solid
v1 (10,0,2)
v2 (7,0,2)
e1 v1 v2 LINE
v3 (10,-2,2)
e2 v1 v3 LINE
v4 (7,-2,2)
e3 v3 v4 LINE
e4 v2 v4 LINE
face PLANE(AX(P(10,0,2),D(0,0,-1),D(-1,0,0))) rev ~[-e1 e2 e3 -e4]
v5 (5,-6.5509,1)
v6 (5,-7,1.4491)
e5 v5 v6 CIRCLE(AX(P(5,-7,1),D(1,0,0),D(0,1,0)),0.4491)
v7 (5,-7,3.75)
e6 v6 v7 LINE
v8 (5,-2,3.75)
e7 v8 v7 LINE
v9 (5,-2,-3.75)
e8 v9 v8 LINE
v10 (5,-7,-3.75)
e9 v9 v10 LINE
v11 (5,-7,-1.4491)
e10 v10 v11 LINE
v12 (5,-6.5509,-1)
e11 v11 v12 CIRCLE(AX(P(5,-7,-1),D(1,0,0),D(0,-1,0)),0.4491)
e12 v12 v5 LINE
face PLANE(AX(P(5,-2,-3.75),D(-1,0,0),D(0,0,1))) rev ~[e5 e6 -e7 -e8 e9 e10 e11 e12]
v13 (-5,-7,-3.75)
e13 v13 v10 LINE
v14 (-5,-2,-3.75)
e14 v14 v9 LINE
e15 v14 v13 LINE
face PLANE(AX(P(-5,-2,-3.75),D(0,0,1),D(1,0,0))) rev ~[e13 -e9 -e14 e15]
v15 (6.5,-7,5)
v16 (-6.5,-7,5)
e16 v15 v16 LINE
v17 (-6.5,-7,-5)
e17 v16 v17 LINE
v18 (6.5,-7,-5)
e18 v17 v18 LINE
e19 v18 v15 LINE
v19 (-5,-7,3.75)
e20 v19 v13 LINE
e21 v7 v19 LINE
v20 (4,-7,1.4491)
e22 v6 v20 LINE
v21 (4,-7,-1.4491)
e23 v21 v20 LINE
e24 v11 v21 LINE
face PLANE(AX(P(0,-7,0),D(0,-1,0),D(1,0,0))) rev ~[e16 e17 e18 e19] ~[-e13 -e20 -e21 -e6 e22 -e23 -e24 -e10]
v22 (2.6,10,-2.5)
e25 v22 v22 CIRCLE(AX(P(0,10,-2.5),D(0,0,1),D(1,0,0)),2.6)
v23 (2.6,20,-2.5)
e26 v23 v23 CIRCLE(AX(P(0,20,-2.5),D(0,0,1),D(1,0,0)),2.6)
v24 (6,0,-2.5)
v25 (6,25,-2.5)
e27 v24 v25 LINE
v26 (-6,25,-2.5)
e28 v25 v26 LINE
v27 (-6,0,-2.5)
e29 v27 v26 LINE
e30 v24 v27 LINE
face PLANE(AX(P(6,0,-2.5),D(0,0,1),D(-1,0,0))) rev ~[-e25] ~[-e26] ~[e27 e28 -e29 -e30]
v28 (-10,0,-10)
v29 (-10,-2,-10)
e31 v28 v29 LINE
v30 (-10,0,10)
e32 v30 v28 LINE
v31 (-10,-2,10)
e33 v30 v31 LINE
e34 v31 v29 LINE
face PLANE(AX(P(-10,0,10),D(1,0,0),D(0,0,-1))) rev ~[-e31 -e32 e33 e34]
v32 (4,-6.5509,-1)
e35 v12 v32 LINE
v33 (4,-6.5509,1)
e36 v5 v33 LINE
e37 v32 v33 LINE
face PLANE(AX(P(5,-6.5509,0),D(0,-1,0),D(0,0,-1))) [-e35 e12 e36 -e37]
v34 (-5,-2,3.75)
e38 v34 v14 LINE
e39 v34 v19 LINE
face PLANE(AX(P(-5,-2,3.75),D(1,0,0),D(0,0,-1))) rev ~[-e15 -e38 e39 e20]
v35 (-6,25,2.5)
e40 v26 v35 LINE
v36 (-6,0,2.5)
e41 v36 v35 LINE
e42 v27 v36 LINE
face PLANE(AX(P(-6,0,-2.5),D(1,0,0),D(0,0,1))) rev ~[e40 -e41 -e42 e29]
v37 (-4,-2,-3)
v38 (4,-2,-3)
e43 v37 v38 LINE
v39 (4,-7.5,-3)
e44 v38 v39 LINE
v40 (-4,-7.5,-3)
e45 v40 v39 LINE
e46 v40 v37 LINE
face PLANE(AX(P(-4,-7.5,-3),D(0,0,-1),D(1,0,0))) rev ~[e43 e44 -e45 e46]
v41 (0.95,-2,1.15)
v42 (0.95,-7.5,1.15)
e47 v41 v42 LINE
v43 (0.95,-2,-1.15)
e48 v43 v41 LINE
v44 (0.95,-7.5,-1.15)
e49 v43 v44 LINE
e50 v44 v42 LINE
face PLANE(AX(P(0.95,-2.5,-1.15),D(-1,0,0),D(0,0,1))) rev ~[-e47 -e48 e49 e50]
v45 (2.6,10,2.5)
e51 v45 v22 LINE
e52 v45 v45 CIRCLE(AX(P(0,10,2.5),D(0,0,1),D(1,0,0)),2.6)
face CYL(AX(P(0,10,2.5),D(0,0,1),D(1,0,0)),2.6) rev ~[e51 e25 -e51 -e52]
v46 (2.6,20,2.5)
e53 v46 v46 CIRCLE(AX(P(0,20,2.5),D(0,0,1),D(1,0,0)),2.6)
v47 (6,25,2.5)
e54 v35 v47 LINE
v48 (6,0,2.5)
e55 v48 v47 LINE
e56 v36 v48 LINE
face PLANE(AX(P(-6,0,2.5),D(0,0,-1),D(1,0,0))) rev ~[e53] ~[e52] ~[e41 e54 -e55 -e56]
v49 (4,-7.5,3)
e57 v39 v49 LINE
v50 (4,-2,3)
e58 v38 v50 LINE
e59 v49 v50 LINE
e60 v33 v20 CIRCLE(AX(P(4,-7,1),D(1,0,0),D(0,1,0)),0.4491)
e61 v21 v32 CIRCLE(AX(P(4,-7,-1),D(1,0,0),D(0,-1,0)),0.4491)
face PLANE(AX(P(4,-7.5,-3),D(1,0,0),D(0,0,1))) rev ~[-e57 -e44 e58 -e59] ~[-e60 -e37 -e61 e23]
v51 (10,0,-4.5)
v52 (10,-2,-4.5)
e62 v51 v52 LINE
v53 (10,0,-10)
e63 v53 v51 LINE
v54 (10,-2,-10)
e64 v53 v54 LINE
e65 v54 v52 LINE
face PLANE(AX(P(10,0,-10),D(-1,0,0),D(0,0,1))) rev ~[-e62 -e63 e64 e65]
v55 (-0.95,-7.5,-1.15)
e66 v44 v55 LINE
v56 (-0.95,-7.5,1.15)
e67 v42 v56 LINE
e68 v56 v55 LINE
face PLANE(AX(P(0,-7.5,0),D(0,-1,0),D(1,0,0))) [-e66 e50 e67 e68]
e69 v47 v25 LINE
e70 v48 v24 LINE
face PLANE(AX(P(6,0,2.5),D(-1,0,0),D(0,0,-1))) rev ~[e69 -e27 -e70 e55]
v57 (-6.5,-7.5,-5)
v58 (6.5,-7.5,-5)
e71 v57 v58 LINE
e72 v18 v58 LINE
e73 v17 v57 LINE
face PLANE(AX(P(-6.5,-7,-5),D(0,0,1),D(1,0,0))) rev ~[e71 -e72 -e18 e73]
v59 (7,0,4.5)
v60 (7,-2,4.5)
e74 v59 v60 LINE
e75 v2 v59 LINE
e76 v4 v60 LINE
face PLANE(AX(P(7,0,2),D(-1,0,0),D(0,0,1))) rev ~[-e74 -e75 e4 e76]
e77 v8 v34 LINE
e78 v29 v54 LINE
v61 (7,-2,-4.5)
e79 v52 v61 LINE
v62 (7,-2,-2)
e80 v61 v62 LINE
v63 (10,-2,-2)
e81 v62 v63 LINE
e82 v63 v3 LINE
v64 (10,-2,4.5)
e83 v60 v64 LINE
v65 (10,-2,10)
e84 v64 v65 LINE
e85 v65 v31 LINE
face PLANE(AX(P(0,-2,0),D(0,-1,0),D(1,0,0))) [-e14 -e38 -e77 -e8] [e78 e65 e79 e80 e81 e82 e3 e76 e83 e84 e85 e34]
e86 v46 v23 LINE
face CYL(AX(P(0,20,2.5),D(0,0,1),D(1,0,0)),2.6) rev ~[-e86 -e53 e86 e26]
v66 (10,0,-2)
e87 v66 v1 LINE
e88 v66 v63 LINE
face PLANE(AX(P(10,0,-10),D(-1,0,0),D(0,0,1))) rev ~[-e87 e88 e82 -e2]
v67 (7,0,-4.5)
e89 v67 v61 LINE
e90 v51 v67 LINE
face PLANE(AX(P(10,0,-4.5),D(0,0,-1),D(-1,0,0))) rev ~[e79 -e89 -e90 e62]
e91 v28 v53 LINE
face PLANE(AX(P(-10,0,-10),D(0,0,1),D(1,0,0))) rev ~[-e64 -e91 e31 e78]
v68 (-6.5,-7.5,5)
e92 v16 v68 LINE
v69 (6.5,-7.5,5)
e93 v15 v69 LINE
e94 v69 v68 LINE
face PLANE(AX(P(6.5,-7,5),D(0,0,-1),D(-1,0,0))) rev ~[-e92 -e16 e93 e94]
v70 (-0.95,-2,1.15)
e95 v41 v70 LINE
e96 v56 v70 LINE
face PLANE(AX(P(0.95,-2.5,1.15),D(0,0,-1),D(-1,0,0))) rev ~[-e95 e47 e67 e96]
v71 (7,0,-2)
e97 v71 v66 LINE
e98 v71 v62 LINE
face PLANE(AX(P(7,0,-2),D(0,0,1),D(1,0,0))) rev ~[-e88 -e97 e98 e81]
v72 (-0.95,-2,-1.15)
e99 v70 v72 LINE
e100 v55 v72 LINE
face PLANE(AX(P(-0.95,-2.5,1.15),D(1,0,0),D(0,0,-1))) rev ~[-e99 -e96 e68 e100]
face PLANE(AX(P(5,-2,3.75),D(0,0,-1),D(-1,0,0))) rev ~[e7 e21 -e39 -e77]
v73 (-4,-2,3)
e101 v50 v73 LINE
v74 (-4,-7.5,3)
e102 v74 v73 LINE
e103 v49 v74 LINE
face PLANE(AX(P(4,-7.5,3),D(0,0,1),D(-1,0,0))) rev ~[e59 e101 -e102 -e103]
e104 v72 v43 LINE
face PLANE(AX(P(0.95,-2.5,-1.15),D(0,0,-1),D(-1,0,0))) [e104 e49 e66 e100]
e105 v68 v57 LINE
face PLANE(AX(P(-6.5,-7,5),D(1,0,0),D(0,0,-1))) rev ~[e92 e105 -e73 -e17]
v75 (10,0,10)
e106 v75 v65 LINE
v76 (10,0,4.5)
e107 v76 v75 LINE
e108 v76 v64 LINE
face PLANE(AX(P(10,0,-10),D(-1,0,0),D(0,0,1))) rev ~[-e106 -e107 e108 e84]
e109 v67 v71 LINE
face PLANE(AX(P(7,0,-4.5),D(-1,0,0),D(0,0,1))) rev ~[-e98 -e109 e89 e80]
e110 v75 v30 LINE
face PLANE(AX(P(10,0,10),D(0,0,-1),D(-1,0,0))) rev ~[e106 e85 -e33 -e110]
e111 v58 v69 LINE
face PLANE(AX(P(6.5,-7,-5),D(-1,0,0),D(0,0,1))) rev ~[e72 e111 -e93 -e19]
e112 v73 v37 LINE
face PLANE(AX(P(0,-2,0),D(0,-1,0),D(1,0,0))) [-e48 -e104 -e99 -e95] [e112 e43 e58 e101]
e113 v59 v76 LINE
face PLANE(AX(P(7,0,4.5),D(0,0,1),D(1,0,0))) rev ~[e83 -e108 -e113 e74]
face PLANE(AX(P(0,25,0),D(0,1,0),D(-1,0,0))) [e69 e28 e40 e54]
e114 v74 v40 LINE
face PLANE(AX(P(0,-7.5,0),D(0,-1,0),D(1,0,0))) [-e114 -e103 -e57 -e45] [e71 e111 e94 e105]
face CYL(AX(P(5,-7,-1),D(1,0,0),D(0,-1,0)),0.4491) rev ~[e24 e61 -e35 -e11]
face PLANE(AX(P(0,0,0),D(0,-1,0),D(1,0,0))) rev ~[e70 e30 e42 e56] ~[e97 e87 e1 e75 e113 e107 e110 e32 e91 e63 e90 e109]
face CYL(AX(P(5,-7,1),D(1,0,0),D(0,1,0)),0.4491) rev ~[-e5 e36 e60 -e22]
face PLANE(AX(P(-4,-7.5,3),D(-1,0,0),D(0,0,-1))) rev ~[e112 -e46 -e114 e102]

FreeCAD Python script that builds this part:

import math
import FreeCAD as App
import Part
import Sketcher
from FreeCAD import Vector

doc = App.newDocument("Part")
params = doc.addObject("Spreadsheet::Sheet", "Params")
for row, (alias, value) in enumerate([
    ("sketch1_width", "12 mm"),
    ("sketch1_height", "5 mm"),
    ("pad1_length", "25 mm"),
    ("sketch2_diameter", "5.2 mm"),
    ("pocket1_length", "5.2 mm"),
    ("sketch3_width", "20 mm"),
    ("pad2_length", "2 mm"),
    ("sketch4_width", "1.9 mm"),
    ("sketch4_height", "2.3 mm"),
    ("pad3_length", "5 mm"),
    ("sketch5_width", "10 mm"),
    ("sketch5_width2", "8 mm"),
    ("sketch5_height", "6 mm"),
    ("sketch5_height2", "7.5 mm"),
    ("pad4_length", "5 mm"),
    ("sketch6_height", "2 mm"),
    ("pocket2_length", "2 mm"),
    ("sketch7_width", "3 mm"),
    ("sketch7_height", "2.5 mm"),
    ("pocket3_length", "2 mm"),
    ("sketch8_width", "13 mm"),
    ("sketch8_height", "10 mm"),
    ("pad5_length", "0.5 mm"),
    ("sketch9_width", "8 mm"),
    ("sketch9_height", "6 mm"),
    ("pocket4_length", "5 mm"),
    ("sketch10_width", "1.9 mm"),
    ("sketch10_height", "2.3 mm"),
    ("pad6_length", "5 mm"),
], start=1):
    params.set(f"A{row}", alias)
    params.set(f"B{row}", "=" + value)
    params.setAlias(f"B{row}", alias)

body = doc.addObject("PartDesign::Body", "Body")

sketch1 = body.newObject("Sketcher::SketchObject", "Sketch")
sketch1.AttachmentSupport = (doc.getObject("XZ_Plane"), [""])
sketch1.MapMode = "FlatFace"
sketch1.addGeometry([
    Part.LineSegment(Vector(-6, -2, 0), Vector(-6, 2, 0)),
    Part.LineSegment(Vector(-6, 2, 0), Vector(6, 2, 0)),
    Part.LineSegment(Vector(6, 2, 0), Vector(6, -2, 0)),
    Part.LineSegment(Vector(6, -2, 0), Vector(-6, -2, 0)),
], False)
sketch1.addConstraint([
    Sketcher.Constraint("Coincident", 0, 2, 1, 1),
    Sketcher.Constraint("Coincident", 1, 2, 2, 1),
    Sketcher.Constraint("Coincident", 2, 2, 3, 1),
    Sketcher.Constraint("Coincident", 3, 2, 0, 1),
    Sketcher.Constraint("Vertical", 0),
    Sketcher.Constraint("Horizontal", 1),
    Sketcher.Constraint("Vertical", 2),
    Sketcher.Constraint("Horizontal", 3),
    Sketcher.Constraint("Symmetric", 0, 2, 2, 2, -1, 1),
    Sketcher.Constraint("DistanceX", 1, 1, 1, 2, 12.0),
    Sketcher.Constraint("DistanceY", 0, 1, 0, 2, 5.0),
])
sketch1.setExpression("Constraints[9]", "Params.sketch1_width")
sketch1.setExpression("Constraints[10]", "Params.sketch1_height")
pad1 = body.newObject("PartDesign::Pad", "Pad")
pad1.Profile = sketch1
pad1.setExpression("Length", "Params.pad1_length")
pad1.Reversed = True

sketch2 = body.newObject("Sketcher::SketchObject", "Sketch001")
sketch2.AttachmentSupport = (doc.getObject("XY_Plane"), [""])
sketch2.MapMode = "FlatFace"
sketch2.AttachmentOffset = App.Placement(Vector(0, 0, 2.5), App.Rotation())
sketch2.addGeometry([
    Part.Circle(Vector(0, 10, 0), Vector(0, 0, 1), 2.6),
    Part.Circle(Vector(0, 20, 0), Vector(0, 0, 1), 2.6),
], False)
sketch2.addConstraint([
    Sketcher.Constraint("Equal", 0, 1),
    Sketcher.Constraint("PointOnObject", 0, 3, -2),
    Sketcher.Constraint("PointOnObject", 1, 3, -2),
    Sketcher.Constraint("Diameter", 0, 5.2),
    Sketcher.Constraint("DistanceY", -1, 1, 0, 3, 10.0),
    Sketcher.Constraint("DistanceY", 0, 3, 1, 3, 10.0),
])
sketch2.setExpression("Constraints[3]", "Params.sketch2_diameter")
pocket1 = body.newObject("PartDesign::Pocket", "Pocket")
pocket1.Profile = sketch2
pocket1.setExpression("Length", "Params.pocket1_length")

sketch3 = body.newObject("Sketcher::SketchObject", "Sketch002")
sketch3.AttachmentSupport = (doc.getObject("XZ_Plane"), [""])
sketch3.MapMode = "FlatFace"
sketch3.addGeometry([
    Part.LineSegment(Vector(-10, 10, 0), Vector(-10, -10, 0)),
    Part.LineSegment(Vector(-10, -10, 0), Vector(10, -10, 0)),
    Part.LineSegment(Vector(10, -10, 0), Vector(10, 10, 0)),
    Part.LineSegment(Vector(10, 10, 0), Vector(-10, 10, 0)),
], False)
sketch3.addConstraint([
    Sketcher.Constraint("Coincident", 0, 2, 1, 1),
    Sketcher.Constraint("Coincident", 1, 2, 2, 1),
    Sketcher.Constraint("Coincident", 2, 2, 3, 1),
    Sketcher.Constraint("Coincident", 3, 2, 0, 1),
    Sketcher.Constraint("Vertical", 0),
    Sketcher.Constraint("Horizontal", 1),
    Sketcher.Constraint("Vertical", 2),
    Sketcher.Constraint("Horizontal", 3),
    Sketcher.Constraint("Symmetric", 0, 2, 2, 2, -1, 1),
    Sketcher.Constraint("Equal", 3, 0),
    Sketcher.Constraint("DistanceX", 1, 1, 1, 2, 20.0),
])
sketch3.setExpression("Constraints[10]", "Params.sketch3_width")
pad2 = body.newObject("PartDesign::Pad", "Pad001")
pad2.Profile = sketch3
pad2.setExpression("Length", "Params.pad2_length")

sketch4 = body.newObject("Sketcher::SketchObject", "Sketch003")
sketch4.AttachmentSupport = (doc.getObject("XZ_Plane"), [""])
sketch4.MapMode = "FlatFace"
sketch4.AttachmentOffset = App.Placement(Vector(0, 0, 2), App.Rotation())
sketch4.addGeometry([
    Part.LineSegment(Vector(-0.9, 1.1, 0), Vector(-0.9, -1.1, 0)),
    Part.LineSegment(Vector(-0.9, -1.1, 0), Vector(0.9, -1.1, 0)),
    Part.LineSegment(Vector(0.9, -1.1, 0), Vector(0.9, 1.1, 0)),
    Part.LineSegment(Vector(0.9, 1.1, 0), Vector(-0.9, 1.1, 0)),
], False)
sketch4.addConstraint([
    Sketcher.Constraint("Coincident", 0, 2, 1, 1),
    Sketcher.Constraint("Coincident", 1, 2, 2, 1),
    Sketcher.Constraint("Coincident", 2, 2, 3, 1),
    Sketcher.Constraint("Coincident", 3, 2, 0, 1),
    Sketcher.Constraint("Vertical", 0),
    Sketcher.Constraint("Horizontal", 1),
    Sketcher.Constraint("Vertical", 2),
    Sketcher.Constraint("Horizontal", 3),
    Sketcher.Constraint("Symmetric", 0, 2, 2, 2, -1, 1),
    Sketcher.Constraint("DistanceX", 1, 1, 1, 2, 1.9),
    Sketcher.Constraint("DistanceY", 0, 2, 0, 1, 2.3),
])
sketch4.setExpression("Constraints[9]", "Params.sketch4_width")
sketch4.setExpression("Constraints[10]", "Params.sketch4_height")
pad3 = body.newObject("PartDesign::Pad", "Pad002")
pad3.Profile = sketch4
pad3.setExpression("Length", "Params.pad3_length")

sketch5 = body.newObject("Sketcher::SketchObject", "Sketch004")
sketch5.AttachmentSupport = (doc.getObject("XZ_Plane"), [""])
sketch5.MapMode = "FlatFace"
sketch5.AttachmentOffset = App.Placement(Vector(0, 0, 2), App.Rotation())
sketch5.addGeometry([
    Part.LineSegment(Vector(-5, 4, 0), Vector(-5, -4, 0)),
    Part.LineSegment(Vector(-5, -4, 0), Vector(5, -4, 0)),
    Part.LineSegment(Vector(5, -4, 0), Vector(5, 4, 0)),
    Part.LineSegment(Vector(5, 4, 0), Vector(-5, 4, 0)),
    Part.LineSegment(Vector(4, -3, 0), Vector(-4, -3, 0)),
    Part.LineSegment(Vector(-4, -3, 0), Vector(-4, 3, 0)),
    Part.LineSegment(Vector(-4, 3, 0), Vector(4, 3, 0)),
    Part.LineSegment(Vector(4, 3, 0), Vector(4, -3, 0)),
], False)
sketch5.addConstraint([
    Sketcher.Constraint("Coincident", 0, 2, 1, 1),
    Sketcher.Constraint("Coincident", 1, 2, 2, 1),
    Sketcher.Constraint("Coincident", 2, 2, 3, 1),
    Sketcher.Constraint("Coincident", 3, 2, 0, 1),
    Sketcher.Constraint("Coincident", 4, 2, 5, 1),
    Sketcher.Constraint("Coincident", 5, 2, 6, 1),
    Sketcher.Constraint("Coincident", 6, 2, 7, 1),
    Sketcher.Constraint("Coincident", 7, 2, 4, 1),
    Sketcher.Constraint("Vertical", 0),
    Sketcher.Constraint("Horizontal", 1),
    Sketcher.Constraint("Vertical", 2),
    Sketcher.Constraint("Horizontal", 3),
    Sketcher.Constraint("Horizontal", 4),
    Sketcher.Constraint("Vertical", 5),
    Sketcher.Constraint("Horizontal", 6),
    Sketcher.Constraint("Vertical", 7),
    Sketcher.Constraint("Symmetric", 0, 2, 2, 2, -1, 1),
    Sketcher.Constraint("Symmetric", 4, 2, 6, 2, -1, 1),
    Sketcher.Constraint("DistanceX", 1, 1, 1, 2, 10.0),
    Sketcher.Constraint("DistanceX", 4, 2, 4, 1, 8.0),
    Sketcher.Constraint("DistanceY", 5, 1, 5, 2, 6.0),
    Sketcher.Constraint("DistanceY", 0, 2, 0, 1, 7.5),
])
sketch5.setExpression("Constraints[18]", "Params.sketch5_width")
sketch5.setExpression("Constraints[19]", "Params.sketch5_width2")
sketch5.setExpression("Constraints[20]", "Params.sketch5_height")
sketch5.setExpression("Constraints[21]", "Params.sketch5_height2")
pad4 = body.newObject("PartDesign::Pad", "Pad003")
pad4.Profile = sketch5
pad4.setExpression("Length", "Params.pad4_length")

sketch6 = body.newObject("Sketcher::SketchObject", "Sketch005")
sketch6.AttachmentSupport = (doc.getObject("YZ_Plane"), [""])
sketch6.MapMode = "FlatFace"
sketch6.AttachmentOffset = App.Placement(Vector(0, 0, 5), App.Rotation())
sketch6.addGeometry([
    Part.ArcOfCircle(Part.Circle(Vector(-7, -1, 0), Vector(0, 0, 1), 0.45), math.radians(-90), math.radians(0)),
    Part.LineSegment(Vector(-6.55, -1, 0), Vector(-6.55, 1, 0)),
    Part.ArcOfCircle(Part.Circle(Vector(-7, 1, 0), Vector(0, 0, 1), 0.45), math.radians(0), math.radians(90)),
    Part.LineSegment(Vector(-7, 1.45, 0), Vector(-7, -1.45, 0)),
], False)
sketch6.addConstraint([
    Sketcher.Constraint("Tangent", 0, 2, 1, 1),
    Sketcher.Constraint("Tangent", 1, 2, 2, 1),
    Sketcher.Constraint("Coincident", 2, 2, 3, 1),
    Sketcher.Constraint("Coincident", 3, 2, 0, 1),
    Sketcher.Constraint("Vertical", 1),
    Sketcher.Constraint("Vertical", 3),
    Sketcher.Constraint("Equal", 0, 2),
    Sketcher.Constraint("Vertical", 0, 3, 2, 2),
    Sketcher.Constraint("DistanceY", 1, 1, 1, 2, 2.0),
    Sketcher.Constraint("DistanceX", 0, 3, -1, 1, 7.0),
    Sketcher.Constraint("DistanceY", 0, 3, -1, 1, 1.0),
    Sketcher.Constraint("Radius", 0, 0.449),
])
sketch6.setExpression("Constraints[8]", "Params.sketch6_height")
pocket2 = body.newObject("PartDesign::Pocket", "Pocket001")
pocket2.Profile = sketch6
pocket2.setExpression("Length", "Params.pocket2_length")

sketch7 = body.newObject("Sketcher::SketchObject", "Sketch006")
sketch7.AttachmentSupport = (doc.getObject("XZ_Plane"), [""])
sketch7.MapMode = "FlatFace"
sketch7.addGeometry([
    Part.LineSegment(Vector(10, 4.5, 0), Vector(10, 2, 0)),
    Part.LineSegment(Vector(10, 2, 0), Vector(7, 2, 0)),
    Part.LineSegment(Vector(7, 2, 0), Vector(7, 4.5, 0)),
    Part.LineSegment(Vector(7, 4.5, 0), Vector(10, 4.5, 0)),
    Part.LineSegment(Vector(10, -2, 0), Vector(10, -4.5, 0)),
    Part.LineSegment(Vector(10, -4.5, 0), Vector(7, -4.5, 0)),
    Part.LineSegment(Vector(7, -4.5, 0), Vector(7, -2, 0)),
    Part.LineSegment(Vector(7, -2, 0), Vector(10, -2, 0)),
], False)
sketch7.addConstraint([
    Sketcher.Constraint("Coincident", 0, 2, 1, 1),
    Sketcher.Constraint("Coincident", 1, 2, 2, 1),
    Sketcher.Constraint("Coincident", 2, 2, 3, 1),
    Sketcher.Constraint("Coincident", 3, 2, 0, 1),
    Sketcher.Constraint("Coincident", 4, 2, 5, 1),
    Sketcher.Constraint("Coincident", 5, 2, 6, 1),
    Sketcher.Constraint("Coincident", 6, 2, 7, 1),
    Sketcher.Constraint("Coincident", 7, 2, 4, 1),
    Sketcher.Constraint("Vertical", 0),
    Sketcher.Constraint("Horizontal", 1),
    Sketcher.Constraint("Vertical", 2),
    Sketcher.Constraint("Horizontal", 3),
    Sketcher.Constraint("Vertical", 4),
    Sketcher.Constraint("Horizontal", 5),
    Sketcher.Constraint("Vertical", 6),
    Sketcher.Constraint("Horizontal", 7),
    Sketcher.Constraint("Symmetric", 3, 2, 4, 2, -1),
    Sketcher.Constraint("Symmetric", 1, 2, 6, 2, -1),
    Sketcher.Constraint("DistanceX", 1, 2, 1, 1, 3.0),
    Sketcher.Constraint("DistanceY", 0, 2, 0, 1, 2.5),
    Sketcher.Constraint("DistanceY", -1, 1, 0, 2, 2.0),
    Sketcher.Constraint("DistanceX", -1, 1, 0, 2, 10.0),
])
sketch7.setExpression("Constraints[18]", "Params.sketch7_width")
sketch7.setExpression("Constraints[19]", "Params.sketch7_height")
pocket3 = body.newObject("PartDesign::Pocket", "Pocket002")
pocket3.Profile = sketch7
pocket3.setExpression("Length", "Params.pocket3_length")
pocket3.Reversed = True

sketch8 = body.newObject("Sketcher::SketchObject", "Sketch007")
sketch8.AttachmentSupport = (doc.getObject("XZ_Plane"), [""])
sketch8.MapMode = "FlatFace"
sketch8.AttachmentOffset = App.Placement(Vector(0, 0, 7), App.Rotation())
sketch8.addGeometry([
    Part.LineSegment(Vector(6, -5, 0), Vector(6, 5, 0)),
    Part.LineSegment(Vector(6, 5, 0), Vector(-6, 5, 0)),
    Part.LineSegment(Vector(-6, 5, 0), Vector(-6, -5, 0)),
    Part.LineSegment(Vector(-6, -5, 0), Vector(6, -5, 0)),
], False)
sketch8.addConstraint([
    Sketcher.Constraint("Coincident", 0, 2, 1, 1),
    Sketcher.Constraint("Coincident", 1, 2, 2, 1),
    Sketcher.Constraint("Coincident", 2, 2, 3, 1),
    Sketcher.Constraint("Coincident", 3, 2, 0, 1),
    Sketcher.Constraint("Vertical", 0),
    Sketcher.Constraint("Horizontal", 1),
    Sketcher.Constraint("Vertical", 2),
    Sketcher.Constraint("Horizontal", 3),
    Sketcher.Constraint("Symmetric", 0, 2, 2, 2, -1, 1),
    Sketcher.Constraint("DistanceX", 1, 2, 1, 1, 13.0),
    Sketcher.Constraint("DistanceY", 0, 1, 0, 2, 10.0),
])
sketch8.setExpression("Constraints[9]", "Params.sketch8_width")
sketch8.setExpression("Constraints[10]", "Params.sketch8_height")
pad5 = body.newObject("PartDesign::Pad", "Pad004")
pad5.Profile = sketch8
pad5.setExpression("Length", "Params.pad5_length")

sketch9 = body.newObject("Sketcher::SketchObject", "Sketch008")
sketch9.AttachmentSupport = (doc.getObject("XZ_Plane"), [""])
sketch9.MapMode = "FlatFace"
sketch9.AttachmentOffset = App.Placement(Vector(0, 0, 7.5), App.Rotation())
sketch9.addGeometry([
    Part.LineSegment(Vector(4, 3, 0), Vector(-4, 3, 0)),
    Part.LineSegment(Vector(-4, 3, 0), Vector(-4, -3, 0)),
    Part.LineSegment(Vector(-4, -3, 0), Vector(4, -3, 0)),
    Part.LineSegment(Vector(4, -3, 0), Vector(4, 3, 0)),
], False)
sketch9.addConstraint([
    Sketcher.Constraint("Coincident", 0, 2, 1, 1),
    Sketcher.Constraint("Coincident", 1, 2, 2, 1),
    Sketcher.Constraint("Coincident", 2, 2, 3, 1),
    Sketcher.Constraint("Coincident", 3, 2, 0, 1),
    Sketcher.Constraint("Horizontal", 0),
    Sketcher.Constraint("Vertical", 1),
    Sketcher.Constraint("Horizontal", 2),
    Sketcher.Constraint("Vertical", 3),
    Sketcher.Constraint("Symmetric", 0, 2, 2, 2, -1, 1),
    Sketcher.Constraint("DistanceX", 0, 2, 0, 1, 8.0),
    Sketcher.Constraint("DistanceY", 1, 2, 1, 1, 6.0),
])
sketch9.setExpression("Constraints[9]", "Params.sketch9_width")
sketch9.setExpression("Constraints[10]", "Params.sketch9_height")
pocket4 = body.newObject("PartDesign::Pocket", "Pocket003")
pocket4.Profile = sketch9
pocket4.setExpression("Length", "Params.pocket4_length")

sketch10 = body.newObject("Sketcher::SketchObject", "Sketch009")
sketch10.AttachmentSupport = (doc.getObject("XZ_Plane"), [""])
sketch10.MapMode = "FlatFace"
sketch10.AttachmentOffset = App.Placement(Vector(0, 0, 2.5), App.Rotation())
sketch10.addGeometry([
    Part.LineSegment(Vector(-0.9, -1.1, 0), Vector(0.9, -1.1, 0)),
    Part.LineSegment(Vector(0.9, -1.1, 0), Vector(0.9, 1.1, 0)),
    Part.LineSegment(Vector(0.9, 1.1, 0), Vector(-0.9, 1.1, 0)),
    Part.LineSegment(Vector(-0.9, 1.1, 0), Vector(-0.9, -1.1, 0)),
], False)
sketch10.addConstraint([
    Sketcher.Constraint("Coincident", 0, 2, 1, 1),
    Sketcher.Constraint("Coincident", 1, 2, 2, 1),
    Sketcher.Constraint("Coincident", 2, 2, 3, 1),
    Sketcher.Constraint("Coincident", 3, 2, 0, 1),
    Sketcher.Constraint("Horizontal", 0),
    Sketcher.Constraint("Vertical", 1),
    Sketcher.Constraint("Horizontal", 2),
    Sketcher.Constraint("Vertical", 3),
    Sketcher.Constraint("Symmetric", 0, 2, 2, 2, -1, 1),
    Sketcher.Constraint("DistanceX", 0, 1, 0, 2, 1.9),
    Sketcher.Constraint("DistanceY", 1, 1, 1, 2, 2.3),
])
sketch10.setExpression("Constraints[9]", "Params.sketch10_width")
sketch10.setExpression("Constraints[10]", "Params.sketch10_height")
pad6 = body.newObject("PartDesign::Pad", "Pad005")
pad6.Profile = sketch10
pad6.setExpression("Length", "Params.pad6_length")

doc.recompute()
